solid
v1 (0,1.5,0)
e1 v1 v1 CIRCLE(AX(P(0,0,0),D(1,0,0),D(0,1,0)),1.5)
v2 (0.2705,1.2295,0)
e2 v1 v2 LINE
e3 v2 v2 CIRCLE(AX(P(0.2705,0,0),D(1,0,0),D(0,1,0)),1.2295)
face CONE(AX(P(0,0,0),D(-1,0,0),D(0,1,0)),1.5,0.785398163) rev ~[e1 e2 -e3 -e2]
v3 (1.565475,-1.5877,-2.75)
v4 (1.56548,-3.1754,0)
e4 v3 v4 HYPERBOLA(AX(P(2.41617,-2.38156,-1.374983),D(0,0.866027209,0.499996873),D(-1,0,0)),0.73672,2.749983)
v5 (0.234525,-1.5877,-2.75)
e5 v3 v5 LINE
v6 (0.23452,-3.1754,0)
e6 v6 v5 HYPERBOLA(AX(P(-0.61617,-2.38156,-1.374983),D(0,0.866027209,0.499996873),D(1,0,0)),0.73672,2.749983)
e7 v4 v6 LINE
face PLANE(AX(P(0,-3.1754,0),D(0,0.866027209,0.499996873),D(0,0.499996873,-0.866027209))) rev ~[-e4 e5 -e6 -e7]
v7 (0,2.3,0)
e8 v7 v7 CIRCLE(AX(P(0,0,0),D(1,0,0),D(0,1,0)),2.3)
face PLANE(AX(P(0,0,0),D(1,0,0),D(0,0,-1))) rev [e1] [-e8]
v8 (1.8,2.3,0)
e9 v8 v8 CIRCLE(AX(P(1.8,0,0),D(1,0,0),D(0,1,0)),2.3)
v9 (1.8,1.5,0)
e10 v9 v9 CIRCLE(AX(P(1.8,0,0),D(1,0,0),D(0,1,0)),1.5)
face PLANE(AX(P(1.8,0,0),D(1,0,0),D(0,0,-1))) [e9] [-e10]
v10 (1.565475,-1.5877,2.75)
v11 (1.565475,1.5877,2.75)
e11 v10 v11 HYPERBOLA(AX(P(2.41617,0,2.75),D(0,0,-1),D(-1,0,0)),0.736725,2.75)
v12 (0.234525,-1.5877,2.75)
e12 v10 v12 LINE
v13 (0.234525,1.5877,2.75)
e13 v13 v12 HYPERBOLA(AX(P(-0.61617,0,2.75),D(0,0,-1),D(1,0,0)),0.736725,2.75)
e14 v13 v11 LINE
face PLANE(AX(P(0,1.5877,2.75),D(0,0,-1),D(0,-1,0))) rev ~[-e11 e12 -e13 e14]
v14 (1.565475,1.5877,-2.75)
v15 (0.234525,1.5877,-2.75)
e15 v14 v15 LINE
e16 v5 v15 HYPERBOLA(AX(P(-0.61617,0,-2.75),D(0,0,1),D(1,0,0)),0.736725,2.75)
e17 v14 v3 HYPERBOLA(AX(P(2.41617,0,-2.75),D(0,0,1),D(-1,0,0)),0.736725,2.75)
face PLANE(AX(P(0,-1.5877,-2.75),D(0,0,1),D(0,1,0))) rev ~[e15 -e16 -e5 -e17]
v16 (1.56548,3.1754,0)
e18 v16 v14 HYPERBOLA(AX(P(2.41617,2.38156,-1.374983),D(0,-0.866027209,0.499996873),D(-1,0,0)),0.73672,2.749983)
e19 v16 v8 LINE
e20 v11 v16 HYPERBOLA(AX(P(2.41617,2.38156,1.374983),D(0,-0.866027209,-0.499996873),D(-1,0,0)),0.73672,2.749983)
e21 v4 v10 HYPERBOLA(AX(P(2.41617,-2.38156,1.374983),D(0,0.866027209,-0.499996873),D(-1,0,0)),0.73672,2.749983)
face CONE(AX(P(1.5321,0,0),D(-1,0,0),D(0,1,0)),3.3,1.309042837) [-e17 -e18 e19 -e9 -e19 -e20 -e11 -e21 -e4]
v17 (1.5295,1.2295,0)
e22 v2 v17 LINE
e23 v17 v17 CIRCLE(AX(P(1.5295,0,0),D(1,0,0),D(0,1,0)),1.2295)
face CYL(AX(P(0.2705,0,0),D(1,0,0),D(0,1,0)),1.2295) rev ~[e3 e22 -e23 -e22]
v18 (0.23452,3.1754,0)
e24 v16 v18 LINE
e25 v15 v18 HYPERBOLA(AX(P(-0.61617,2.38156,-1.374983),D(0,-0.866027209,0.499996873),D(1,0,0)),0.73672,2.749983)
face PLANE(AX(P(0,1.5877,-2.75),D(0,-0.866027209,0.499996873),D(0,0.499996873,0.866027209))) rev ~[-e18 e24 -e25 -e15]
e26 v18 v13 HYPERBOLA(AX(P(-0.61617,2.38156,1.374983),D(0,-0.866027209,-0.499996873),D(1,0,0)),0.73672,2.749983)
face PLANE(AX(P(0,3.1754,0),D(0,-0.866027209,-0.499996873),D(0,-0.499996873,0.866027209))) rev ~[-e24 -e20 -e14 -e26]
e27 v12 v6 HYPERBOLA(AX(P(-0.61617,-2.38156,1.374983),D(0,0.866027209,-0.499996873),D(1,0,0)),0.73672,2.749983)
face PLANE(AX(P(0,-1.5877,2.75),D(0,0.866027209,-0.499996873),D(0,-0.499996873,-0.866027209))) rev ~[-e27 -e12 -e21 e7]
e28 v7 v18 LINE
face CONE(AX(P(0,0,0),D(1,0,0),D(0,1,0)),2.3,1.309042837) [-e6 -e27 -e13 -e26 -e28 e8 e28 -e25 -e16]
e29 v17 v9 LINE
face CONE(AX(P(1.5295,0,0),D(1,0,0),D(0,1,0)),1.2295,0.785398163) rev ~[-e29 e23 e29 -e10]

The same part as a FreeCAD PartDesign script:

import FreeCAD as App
import Part
import Sketcher
from FreeCAD import Vector
Q = App.Units.Quantity


def add_polygon(sketch, points):
    """Adds a closed chain of lines whose ends are joined by coincident constraints."""
    first, n = sketch.GeometryCount, len(points)
    for a, b in zip(points, points[1:] + points[:1]):
        sketch.addGeometry(Part.LineSegment(App.Vector(*a, 0), App.Vector(*b, 0)), False)
    for i in range(n):
        sketch.addConstraint(Sketcher.Constraint("Coincident", first + i, 2, first + (i + 1) % n, 1))

doc = App.newDocument("Part")
params = doc.addObject("Spreadsheet::Sheet", "Params")
for row, (alias, value) in enumerate([
    ("sketch1_width", "1.8 mm"),
    ("sketch1_height", "3.3 mm"),
    ("revolution_angle", "360 deg"),
    ("sketch2_width", "6.4 mm"),
    ("sketch2_width2", "2.3 mm"),
    ("sketch2_height", "3.2 mm"),
    ("groove_angle", "360 deg"),
    ("sketch3_width", "1.8 mm"),
    ("sketch3_height", "1.5 mm"),
    ("groove2_angle", "360 deg"),
    ("sketch4_width", "22 mm"),
    ("pocket1_length", "5.6 mm"),
], start=1):
    params.set(f"A{row}", alias)
    params.set(f"B{row}", "=" + value)
    params.setAlias(f"B{row}", alias)

body = doc.addObject("PartDesign::Body", "Body")

sketch1 = doc.addObject("Sketcher::SketchObject", "Sketch")
body.addObject(sketch1)
sketch1.AttachmentSupport = (doc.XZ_Plane, [""])
sketch1.MapMode = "FlatFace"
add_polygon(sketch1, [(0, 0), (1.8, 0), (1.8, -3.3), (0, -3.3)])
sketch1.addConstraint([
    Sketcher.Constraint("Horizontal", 0),
    Sketcher.Constraint("Vertical", 1),
    Sketcher.Constraint("Horizontal", 2),
    Sketcher.Constraint("Vertical", 3),
    Sketcher.Constraint("Coincident", 3, 2, -1, 1),
    Sketcher.Constraint("DistanceX", 0, 1, 0, 2, 1.8),
    Sketcher.Constraint("DistanceY", 1, 2, 1, 1, 3.3),
])
sketch1.setExpression("Constraints[9]", "Params.sketch1_width")
sketch1.setExpression("Constraints[10]", "Params.sketch1_height")
revolution = doc.addObject("PartDesign::Revolution", "Revolution")
body.addObject(revolution)
revolution.Profile = sketch1
revolution.ReferenceAxis = (sketch1, ["H_Axis"])
revolution.setExpression("Angle", "Params.revolution_angle")

sketch2 = doc.addObject("Sketcher::SketchObject", "Sketch001")
body.addObject(sketch2)
sketch2.AttachmentSupport = (doc.XY_Plane, [""])
sketch2.MapMode = "FlatFace"
add_polygon(sketch2, [(4.1, 5.5), (-2.3, 5.5), (-2.3, 2.3), (0, 2.3), (0.3, 3.3), (1.5, 3.3), (1.8, 2.3), (4.1, 2.3)])
sketch2.addConstraint([
    Sketcher.Constraint("Horizontal", 0),
    Sketcher.Constraint("Vertical", 1),
    Sketcher.Constraint("Horizontal", 2),
    Sketcher.Constraint("Horizontal", 4),
    Sketcher.Constraint("Horizontal", 6),
    Sketcher.Constraint("Vertical", 7),
    Sketcher.Constraint("PointOnObject", 2, 2, -2),
    Sketcher.Constraint("Horizontal", 2, 2, 5, 2),
    Sketcher.Constraint("Equal", 2, 6),
    Sketcher.Constraint("Equal", 3, 5),
    Sketcher.Constraint("DistanceX", 0, 2, 0, 1, 6.4),
    Sketcher.Constraint("DistanceX", 2, 1, 2, 2, 2.3),
    Sketcher.Constraint("DistanceY", 1, 2, 1, 1, 3.2),
    Sketcher.Constraint("DistanceY", 2, 2, 3, 2, 1.0),
    Sketcher.Constraint("DistanceY", -1, 1, 0, 2, 5.5),
    Sketcher.Constraint("DistanceX", 4, 1, 4, 2, 1.2642),
])
sketch2.setExpression("Constraints[18]", "Params.sketch2_width")
sketch2.setExpression("Constraints[19]", "Params.sketch2_width2")
sketch2.setExpression("Constraints[20]", "Params.sketch2_height")
groove = doc.addObject("PartDesign::Groove", "Groove")
body.addObject(groove)
groove.Profile = sketch2
groove.ReferenceAxis = (sketch2, ["H_Axis"])
groove.setExpression("Angle", "Params.groove_angle")

sketch3 = doc.addObject("Sketcher::SketchObject", "Sketch002")
body.addObject(sketch3)
sketch3.AttachmentSupport = (doc.XY_Plane, [""])
sketch3.MapMode = "FlatFace"
add_polygon(sketch3, [(0, 0), (1.8, 0), (1.8, 1.5), (1.53, 1.23), (0.27, 1.23), (0, 1.5)])
sketch3.addConstraint([
    Sketcher.Constraint("Horizontal", 0),
    Sketcher.Constraint("Vertical", 1),
    Sketcher.Constraint("Horizontal", 3),
    Sketcher.Constraint("Vertical", 5),
    Sketcher.Constraint("Coincident", 5, 2, -1, 1),
    Sketcher.Constraint("Perpendicular", 2, 4),
    Sketcher.Constraint("Horizontal", 1, 2, 4, 2),
    Sketcher.Constraint("Equal", 2, 4),
    Sketcher.Constraint("DistanceX", 0, 1, 0, 2, 1.8),
    Sketcher.Constraint("DistanceY", 1, 1, 1, 2, 1.5),
    Sketcher.Constraint("DistanceX", 3, 2, 3, 1, 1.259),
])
sketch3.setExpression("Constraints[14]", "Params.sketch3_width")
sketch3.setExpression("Constraints[15]", "Params.sketch3_height")
groove2 = doc.addObject("PartDesign::Groove", "Groove001")
body.addObject(groove2)
groove2.Profile = sketch3
groove2.ReferenceAxis = (sketch3, ["H_Axis"])
groove2.setExpression("Angle", "Params.groove2_angle")

sketch4 = doc.addObject("Sketcher::SketchObject", "Sketch003")
body.addObject(sketch4)
sketch4.AttachmentSupport = (doc.YZ_Plane, [""])
sketch4.MapMode = "FlatFace"
add_polygon(sketch4, [(11, -11), (11, 11), (-11, 11), (-11, -11)])
add_polygon(sketch4, [(-1.6, 2.8), (1.6, 2.8), (3.2, 0), (1.6, -2.8), (-1.6, -2.8), (-3.2, 0)])
sketch4.addConstraint([
    Sketcher.Constraint("Vertical", 0),
    Sketcher.Constraint("Horizontal", 1),
    Sketcher.Constraint("Vertical", 2),
    Sketcher.Constraint("Horizontal", 3),
    Sketcher.Constraint("Horizontal", 4),
    Sketcher.Constraint("Horizontal", 7),
    Sketcher.Constraint("Symmetric", 0, 2, 2, 2, -1, 1),
    Sketcher.Constraint("Symmetric", 4, 2, 7, 2, -1, 1),
    Sketcher.Constraint("Symmetric", 5, 2, 8, 2, -1, 1),
    Sketcher.Constraint("PointOnObject", 5, 2, -1),
    Sketcher.Constraint("Parallel", 6, 9),
    Sketcher.Constraint("Vertical", 4, 2, 6, 2),
    Sketcher.Constraint("Equal", 3, 0),
    Sketcher.Constraint("DistanceX", 1, 2, 1, 1, 22.0),
    Sketcher.Constraint("Angle", 5, Q("-60.0002 deg")),
    Sketcher.Constraint("DistanceY", 6, 2, 4, 2, 5.5),
    Sketcher.Constraint("DistanceX", 4, 1, 4, 2, 3.1754),
])
sketch4.setExpression("Constraints[23]", "Params.sketch4_width")
pocket1 = doc.addObject("PartDesign::Pocket", "Pocket")
body.addObject(pocket1)
pocket1.Profile = sketch4
pocket1.setExpression("Length", "Params.pocket1_length")
pocket1.Midplane = True

doc.recompute()
